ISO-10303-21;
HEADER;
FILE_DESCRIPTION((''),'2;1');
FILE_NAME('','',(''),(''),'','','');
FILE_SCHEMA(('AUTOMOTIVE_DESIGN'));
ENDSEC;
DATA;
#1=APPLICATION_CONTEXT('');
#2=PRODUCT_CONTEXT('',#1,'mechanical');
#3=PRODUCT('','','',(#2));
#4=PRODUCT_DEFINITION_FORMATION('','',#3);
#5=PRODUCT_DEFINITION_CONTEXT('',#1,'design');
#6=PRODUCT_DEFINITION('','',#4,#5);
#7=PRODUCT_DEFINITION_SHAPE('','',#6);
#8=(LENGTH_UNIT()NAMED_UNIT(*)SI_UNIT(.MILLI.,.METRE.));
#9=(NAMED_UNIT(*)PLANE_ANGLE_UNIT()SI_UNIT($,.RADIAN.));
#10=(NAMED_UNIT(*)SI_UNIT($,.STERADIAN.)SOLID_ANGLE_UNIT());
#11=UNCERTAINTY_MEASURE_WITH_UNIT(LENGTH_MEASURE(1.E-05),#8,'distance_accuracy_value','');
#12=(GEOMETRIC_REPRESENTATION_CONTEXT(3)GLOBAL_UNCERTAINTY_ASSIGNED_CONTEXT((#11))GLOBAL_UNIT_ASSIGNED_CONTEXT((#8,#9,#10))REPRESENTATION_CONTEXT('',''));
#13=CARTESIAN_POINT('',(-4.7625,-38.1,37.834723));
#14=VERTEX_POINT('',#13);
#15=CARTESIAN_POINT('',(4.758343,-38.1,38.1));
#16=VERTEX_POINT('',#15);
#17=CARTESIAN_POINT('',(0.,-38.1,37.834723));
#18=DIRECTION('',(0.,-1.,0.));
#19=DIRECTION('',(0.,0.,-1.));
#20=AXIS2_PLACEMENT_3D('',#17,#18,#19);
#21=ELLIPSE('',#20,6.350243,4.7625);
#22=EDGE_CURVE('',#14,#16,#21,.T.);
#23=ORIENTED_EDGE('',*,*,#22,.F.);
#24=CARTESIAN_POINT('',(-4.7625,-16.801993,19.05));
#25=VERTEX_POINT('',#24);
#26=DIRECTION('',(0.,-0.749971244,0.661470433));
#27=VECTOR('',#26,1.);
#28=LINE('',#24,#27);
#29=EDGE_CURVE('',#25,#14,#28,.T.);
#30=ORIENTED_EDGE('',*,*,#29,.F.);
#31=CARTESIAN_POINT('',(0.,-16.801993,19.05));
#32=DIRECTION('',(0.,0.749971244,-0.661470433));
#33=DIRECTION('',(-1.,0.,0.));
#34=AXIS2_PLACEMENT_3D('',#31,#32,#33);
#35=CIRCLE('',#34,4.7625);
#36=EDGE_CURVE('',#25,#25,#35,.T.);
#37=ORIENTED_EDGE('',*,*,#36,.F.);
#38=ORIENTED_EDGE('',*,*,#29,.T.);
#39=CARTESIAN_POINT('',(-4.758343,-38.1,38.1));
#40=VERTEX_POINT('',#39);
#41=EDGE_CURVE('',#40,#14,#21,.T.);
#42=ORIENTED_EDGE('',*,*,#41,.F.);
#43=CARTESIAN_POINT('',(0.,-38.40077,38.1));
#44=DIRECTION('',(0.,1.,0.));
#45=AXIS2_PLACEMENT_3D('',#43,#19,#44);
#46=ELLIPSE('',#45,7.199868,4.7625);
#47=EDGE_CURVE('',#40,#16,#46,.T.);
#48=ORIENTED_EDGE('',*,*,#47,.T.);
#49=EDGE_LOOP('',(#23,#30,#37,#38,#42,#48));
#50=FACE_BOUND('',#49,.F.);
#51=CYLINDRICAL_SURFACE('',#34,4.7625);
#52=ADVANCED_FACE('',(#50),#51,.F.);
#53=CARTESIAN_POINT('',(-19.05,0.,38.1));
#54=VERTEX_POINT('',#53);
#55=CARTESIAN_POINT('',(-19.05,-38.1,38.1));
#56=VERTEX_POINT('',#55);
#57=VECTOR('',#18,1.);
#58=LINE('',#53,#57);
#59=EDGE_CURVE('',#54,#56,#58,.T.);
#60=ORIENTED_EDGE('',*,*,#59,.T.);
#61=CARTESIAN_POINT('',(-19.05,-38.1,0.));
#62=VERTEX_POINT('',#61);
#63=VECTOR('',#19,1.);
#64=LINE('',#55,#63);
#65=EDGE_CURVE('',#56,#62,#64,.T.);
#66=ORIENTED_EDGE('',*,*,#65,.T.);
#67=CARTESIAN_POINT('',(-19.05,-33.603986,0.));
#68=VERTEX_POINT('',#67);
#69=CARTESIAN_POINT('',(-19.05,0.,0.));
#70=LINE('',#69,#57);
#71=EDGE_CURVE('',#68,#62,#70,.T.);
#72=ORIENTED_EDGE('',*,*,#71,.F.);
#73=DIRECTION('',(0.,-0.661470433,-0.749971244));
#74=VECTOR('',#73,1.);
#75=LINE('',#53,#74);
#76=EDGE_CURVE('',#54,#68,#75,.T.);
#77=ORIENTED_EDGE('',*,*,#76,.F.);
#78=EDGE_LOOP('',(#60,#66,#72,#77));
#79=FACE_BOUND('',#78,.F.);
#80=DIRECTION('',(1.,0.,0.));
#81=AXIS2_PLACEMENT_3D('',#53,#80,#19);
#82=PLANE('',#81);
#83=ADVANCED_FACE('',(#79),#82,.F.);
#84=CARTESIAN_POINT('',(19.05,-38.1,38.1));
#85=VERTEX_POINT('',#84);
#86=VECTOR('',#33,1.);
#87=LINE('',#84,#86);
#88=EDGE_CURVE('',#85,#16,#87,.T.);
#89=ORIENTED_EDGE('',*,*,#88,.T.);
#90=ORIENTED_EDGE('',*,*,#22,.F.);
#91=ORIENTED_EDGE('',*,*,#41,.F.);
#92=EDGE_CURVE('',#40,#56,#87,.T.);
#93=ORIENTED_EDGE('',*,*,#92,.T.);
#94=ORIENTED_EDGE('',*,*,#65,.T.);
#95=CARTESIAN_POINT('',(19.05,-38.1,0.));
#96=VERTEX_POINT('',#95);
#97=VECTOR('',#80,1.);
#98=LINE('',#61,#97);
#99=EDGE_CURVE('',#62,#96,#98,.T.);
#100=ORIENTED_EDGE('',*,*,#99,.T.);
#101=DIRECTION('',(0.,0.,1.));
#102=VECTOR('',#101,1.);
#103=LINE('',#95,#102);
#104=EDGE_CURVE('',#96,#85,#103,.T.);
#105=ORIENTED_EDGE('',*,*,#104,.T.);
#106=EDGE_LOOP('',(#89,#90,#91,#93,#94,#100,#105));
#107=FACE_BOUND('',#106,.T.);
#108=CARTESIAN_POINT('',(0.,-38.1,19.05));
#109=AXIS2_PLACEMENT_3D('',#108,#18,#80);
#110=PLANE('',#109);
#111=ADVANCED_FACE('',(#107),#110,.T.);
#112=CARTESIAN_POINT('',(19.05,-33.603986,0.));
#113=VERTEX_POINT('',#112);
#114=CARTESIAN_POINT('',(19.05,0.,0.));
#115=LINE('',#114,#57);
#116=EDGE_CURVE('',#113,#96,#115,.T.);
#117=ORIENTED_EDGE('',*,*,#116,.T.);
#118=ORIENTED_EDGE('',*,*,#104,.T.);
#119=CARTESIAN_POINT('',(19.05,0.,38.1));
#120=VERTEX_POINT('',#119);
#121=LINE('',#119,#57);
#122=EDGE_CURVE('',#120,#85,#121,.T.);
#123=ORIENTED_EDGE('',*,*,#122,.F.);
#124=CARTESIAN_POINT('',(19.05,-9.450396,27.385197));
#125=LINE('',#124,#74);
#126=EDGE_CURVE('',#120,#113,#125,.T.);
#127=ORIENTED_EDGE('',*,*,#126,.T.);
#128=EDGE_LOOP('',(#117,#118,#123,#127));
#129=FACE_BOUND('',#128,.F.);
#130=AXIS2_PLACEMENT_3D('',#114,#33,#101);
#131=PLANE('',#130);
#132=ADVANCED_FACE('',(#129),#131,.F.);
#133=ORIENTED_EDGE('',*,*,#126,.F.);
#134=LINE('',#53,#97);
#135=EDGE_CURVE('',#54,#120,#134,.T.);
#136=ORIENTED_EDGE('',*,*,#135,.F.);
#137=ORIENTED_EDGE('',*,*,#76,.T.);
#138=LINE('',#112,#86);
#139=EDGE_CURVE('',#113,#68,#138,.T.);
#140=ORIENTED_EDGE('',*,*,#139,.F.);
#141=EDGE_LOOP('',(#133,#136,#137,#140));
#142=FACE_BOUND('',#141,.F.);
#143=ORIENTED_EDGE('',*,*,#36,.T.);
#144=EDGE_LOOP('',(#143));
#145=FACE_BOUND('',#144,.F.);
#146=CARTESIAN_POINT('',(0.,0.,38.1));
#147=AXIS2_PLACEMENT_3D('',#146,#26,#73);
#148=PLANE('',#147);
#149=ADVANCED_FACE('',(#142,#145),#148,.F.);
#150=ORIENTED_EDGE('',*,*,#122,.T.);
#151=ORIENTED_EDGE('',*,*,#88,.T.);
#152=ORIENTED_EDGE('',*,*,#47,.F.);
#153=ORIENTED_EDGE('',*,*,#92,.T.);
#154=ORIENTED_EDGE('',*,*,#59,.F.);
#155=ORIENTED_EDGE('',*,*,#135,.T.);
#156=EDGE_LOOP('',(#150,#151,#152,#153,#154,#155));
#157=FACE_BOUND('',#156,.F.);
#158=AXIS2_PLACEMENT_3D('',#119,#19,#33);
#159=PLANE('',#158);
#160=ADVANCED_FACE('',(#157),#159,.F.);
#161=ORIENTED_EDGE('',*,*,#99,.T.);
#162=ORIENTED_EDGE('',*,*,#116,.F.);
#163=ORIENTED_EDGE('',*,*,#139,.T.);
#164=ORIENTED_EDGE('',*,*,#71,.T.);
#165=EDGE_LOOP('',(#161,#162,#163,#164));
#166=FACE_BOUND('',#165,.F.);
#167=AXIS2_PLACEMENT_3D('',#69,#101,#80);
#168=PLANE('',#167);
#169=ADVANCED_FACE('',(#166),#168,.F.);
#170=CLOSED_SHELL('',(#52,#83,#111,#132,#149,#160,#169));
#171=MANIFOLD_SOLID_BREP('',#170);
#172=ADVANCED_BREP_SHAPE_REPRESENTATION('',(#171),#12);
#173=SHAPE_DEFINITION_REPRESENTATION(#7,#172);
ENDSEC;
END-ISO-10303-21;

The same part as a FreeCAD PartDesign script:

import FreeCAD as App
import Part
import Sketcher

V = App.Vector
Q = App.Units.Quantity

doc = App.newDocument("Part")
body = doc.addObject("PartDesign::Body", "Body")

# Sketch on XZ plane
sketch1 = body.newObject("Sketcher::SketchObject", "Sketch")
sketch1.AttachmentSupport = (doc.getObject("XZ_Plane"), [""])
sketch1.MapMode = "FlatFace"
sketch1.addGeometry(Part.LineSegment(V(-19, 38, 0), V(-19, 0, 0)), False)
sketch1.addGeometry(Part.LineSegment(V(-19, 0, 0), V(19, 0, 0)), False)
sketch1.addGeometry(Part.LineSegment(V(19, 0, 0), V(19, 38, 0)), False)
sketch1.addGeometry(Part.LineSegment(V(19, 38, 0), V(-19, 38, 0)), False)
sketch1.addConstraint(Sketcher.Constraint("Coincident", 0, 2, 1, 1))
sketch1.addConstraint(Sketcher.Constraint("Coincident", 1, 2, 2, 1))
sketch1.addConstraint(Sketcher.Constraint("Coincident", 2, 2, 3, 1))
sketch1.addConstraint(Sketcher.Constraint("Coincident", 3, 2, 0, 1))
sketch1.addConstraint(Sketcher.Constraint("Vertical", 0))
sketch1.addConstraint(Sketcher.Constraint("Horizontal", 1))
sketch1.addConstraint(Sketcher.Constraint("Vertical", 2))
sketch1.addConstraint(Sketcher.Constraint("Horizontal", 3))
sketch1.addConstraint(Sketcher.Constraint("Symmetric", 0, 2, 1, 2, -1, 1))
sketch1.addConstraint(Sketcher.Constraint("Equal", 3, 0))
sketch1.addConstraint(Sketcher.Constraint("DistanceX", 1, 1, 1, 2, Q("1.5 in")))
pad1 = body.newObject("PartDesign::Pad", "Pad")
pad1.Profile = sketch1
pad1.Length = Q("1.5 in")

# Sketch on YZ plane
sketch2 = body.newObject("Sketcher::SketchObject", "Sketch001")
sketch2.AttachmentSupport = (doc.getObject("YZ_Plane"), [""])
sketch2.MapMode = "FlatFace"
sketch2.addGeometry(Part.LineSegment(V(-34, 0, 0), V(0, 0, 0)), False)
sketch2.addGeometry(Part.LineSegment(V(0, 0, 0), V(0, 38, 0)), False)
sketch2.addGeometry(Part.LineSegment(V(0, 38, 0), V(-34, 0, 0)), False)
sketch2.addConstraint(Sketcher.Constraint("Coincident", 0, 2, 1, 1))
sketch2.addConstraint(Sketcher.Constraint("Coincident", 1, 2, 2, 1))
sketch2.addConstraint(Sketcher.Constraint("Coincident", 2, 2, 0, 1))
sketch2.addConstraint(Sketcher.Constraint("Horizontal", 0))
sketch2.addConstraint(Sketcher.Constraint("Vertical", 1))
sketch2.addConstraint(Sketcher.Constraint("Coincident", 0, 2, -1, 1))
sketch2.addConstraint(Sketcher.Constraint("DistanceY", 1, 1, 1, 2, Q("1.5 in")))
sketch2.addConstraint(Sketcher.Constraint("DistanceX", 0, 1, 0, 2, Q("33.603986 mm")))
pocket1 = body.newObject("PartDesign::Pocket", "Pocket")
pocket1.Profile = sketch2
pocket1.Type = "ThroughAll"
pocket1.Midplane = True

# Sketch on an angled plane
sketch3 = body.newObject("Sketcher::SketchObject", "Sketch002")
sketch3.Placement = App.Placement(V(0, -18.900793, 16.670393), App.Rotation(V(-1, 0, 0), V(0, 0.661470433, 0.749971244), V(0, 0.749971244, -0.661470433), "ZXY"))
sketch3.addGeometry(Part.Circle(V(0, 3.2, 0), V(0, 0, 1), 4.8), False)
sketch3.addConstraint(Sketcher.Constraint("PointOnObject", 0, 3, -2))
sketch3.addConstraint(Sketcher.Constraint("Diameter", 0, Q("0.375 in")))
sketch3.addConstraint(Sketcher.Constraint("DistanceY", -1, 1, 0, 3, Q("3.17293 mm")))
pocket2 = body.newObject("PartDesign::Pocket", "Pocket001")
pocket2.Profile = sketch3
pocket2.Type = "ThroughAll"

doc.recompute()
